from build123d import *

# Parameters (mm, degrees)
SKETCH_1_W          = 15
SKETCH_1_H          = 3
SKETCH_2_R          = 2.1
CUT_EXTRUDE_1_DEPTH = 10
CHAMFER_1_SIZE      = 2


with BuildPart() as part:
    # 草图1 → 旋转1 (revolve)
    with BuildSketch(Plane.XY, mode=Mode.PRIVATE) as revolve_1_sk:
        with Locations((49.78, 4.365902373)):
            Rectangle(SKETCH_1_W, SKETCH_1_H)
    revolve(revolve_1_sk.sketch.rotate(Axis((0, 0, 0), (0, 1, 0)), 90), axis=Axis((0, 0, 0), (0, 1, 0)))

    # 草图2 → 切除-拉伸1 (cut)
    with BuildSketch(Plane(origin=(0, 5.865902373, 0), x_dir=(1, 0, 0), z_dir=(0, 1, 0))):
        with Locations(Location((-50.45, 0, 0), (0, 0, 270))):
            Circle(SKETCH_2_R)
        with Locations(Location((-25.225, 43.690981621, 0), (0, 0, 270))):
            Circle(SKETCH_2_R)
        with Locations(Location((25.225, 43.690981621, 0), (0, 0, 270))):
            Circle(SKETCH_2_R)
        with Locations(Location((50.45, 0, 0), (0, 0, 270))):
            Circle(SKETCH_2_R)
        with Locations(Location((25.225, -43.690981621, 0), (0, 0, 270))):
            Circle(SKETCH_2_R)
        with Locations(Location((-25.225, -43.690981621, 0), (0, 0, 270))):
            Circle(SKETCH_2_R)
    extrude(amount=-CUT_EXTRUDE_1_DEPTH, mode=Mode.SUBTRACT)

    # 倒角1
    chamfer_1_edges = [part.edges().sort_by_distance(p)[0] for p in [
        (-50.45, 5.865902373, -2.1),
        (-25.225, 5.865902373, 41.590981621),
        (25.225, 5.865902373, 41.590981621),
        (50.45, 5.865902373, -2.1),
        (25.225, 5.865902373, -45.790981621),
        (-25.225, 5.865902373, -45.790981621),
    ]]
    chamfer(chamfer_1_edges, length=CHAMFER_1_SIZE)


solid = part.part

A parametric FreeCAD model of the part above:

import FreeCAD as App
import Part
import Sketcher

V = App.Vector
Q = App.Units.Quantity


def edges_at(feature, points):
    """Names of the edges that pass closest to the given points."""
    edges = feature.Shape.Edges
    near = lambda p: min(range(len(edges)), key=lambda i: edges[i].distToShape(Part.Vertex(*p))[0])
    return sorted({f"Edge{near(p) + 1}" for p in points})

doc = App.newDocument("Part")
body = doc.addObject("PartDesign::Body", "Body")

# Sketch on XY plane
sketch1 = body.newObject("Sketcher::SketchObject", "Sketch")
sketch1.AttachmentSupport = (doc.getObject("XY_Plane"), [""])
sketch1.MapMode = "FlatFace"
sketch1.addGeometry([
    Part.LineSegment(V(42.3, 5.9, 0), V(42.3, 2.9, 0)),
    Part.LineSegment(V(42.3, 2.9, 0), V(57.3, 2.9, 0)),
    Part.LineSegment(V(57.3, 2.9, 0), V(57.3, 5.9, 0)),
    Part.LineSegment(V(57.3, 5.9, 0), V(42.3, 5.9, 0)),
], False)
sketch1.addConstraint([
    Sketcher.Constraint("Coincident", 0, 2, 1, 1),
    Sketcher.Constraint("Coincident", 1, 2, 2, 1),
    Sketcher.Constraint("Coincident", 2, 2, 3, 1),
    Sketcher.Constraint("Coincident", 3, 2, 0, 1),
    Sketcher.Constraint("Vertical", 0),
    Sketcher.Constraint("Horizontal", 1),
    Sketcher.Constraint("Vertical", 2),
    Sketcher.Constraint("Horizontal", 3),
    Sketcher.Constraint("DistanceX", 1, 1, 1, 2, Q("15 mm")),
    Sketcher.Constraint("DistanceY", 0, 2, 0, 1, Q("3 mm")),
    Sketcher.Constraint("DistanceX", -1, 1, 0, 2, Q("42.28 mm")),
    Sketcher.Constraint("DistanceY", -1, 1, 0, 2, Q("2.865902 mm")),
])
revolution = body.newObject("PartDesign::Revolution", "Revolution")
revolution.Profile = sketch1
revolution.ReferenceAxis = (sketch1, ["V_Axis"])
revolution.Angle = 360

# Sketch on XZ plane
sketch2 = body.newObject("Sketcher::SketchObject", "Sketch001")
sketch2.AttachmentSupport = (doc.getObject("XZ_Plane"), [""])
sketch2.MapMode = "FlatFace"
sketch2.AttachmentOffset = App.Placement(V(0, 0, -5.865902), App.Rotation())
sketch2.addGeometry([
    Part.Circle(V(-50.5, 0, 0), V(0, 0, 1), 2.1),  # 0
    Part.Circle(V(-25.2, -43.7, 0), V(0, 0, 1), 2.1),  # 1
    Part.Circle(V(25.2, -43.7, 0), V(0, 0, 1), 2.1),  # 2
    Part.Circle(V(50.5, 0, 0), V(0, 0, 1), 2.1),  # 3
    Part.Circle(V(25.2, 43.7, 0), V(0, 0, 1), 2.1),  # 4
    Part.Circle(V(-25.2, 43.7, 0), V(0, 0, 1), 2.1),  # 5
], False)
sketch2.addConstraint([
    Sketcher.Constraint("Equal", 0, 1),
    Sketcher.Constraint("Equal", 1, 2),
    Sketcher.Constraint("Equal", 2, 3),
    Sketcher.Constraint("Equal", 3, 4),
    Sketcher.Constraint("Equal", 4, 5),
    Sketcher.Constraint("Symmetric", 0, 3, 3, 3, -1, 1),
    Sketcher.Constraint("Symmetric", 1, 3, 4, 3, -1, 1),
    Sketcher.Constraint("Symmetric", 2, 3, 5, 3, -1, 1),
    Sketcher.Constraint("Symmetric", 1, 3, 2, 3, -2),
    Sketcher.Constraint("PointOnObject", 0, 3, -1),
    Sketcher.Constraint("Diameter", 0, Q("4.2 mm")),
    Sketcher.Constraint("DistanceX", 0, 3, 3, 3, Q("100.9 mm")),
    Sketcher.Constraint("DistanceX", 1, 3, 2, 3, Q("50.45 mm")),
    Sketcher.Constraint("DistanceY", 1, 3, -1, 1, Q("43.690982 mm")),
])
pocket1 = body.newObject("PartDesign::Pocket", "Pocket")
pocket1.Profile = sketch2
pocket1.Length = 10
pocket1.Reversed = True
doc.recompute()

chamfer = body.newObject("PartDesign::Chamfer", "Chamfer")
chamfer.Base = (pocket1, edges_at(pocket1, [
    (-50.45, 5.866, -2.1),
    (-25.225, 5.866, 41.591),
    (25.225, 5.866, 41.591),
    (50.45, 5.866, -2.1),
    (25.225, 5.866, -45.791),
    (-25.225, 5.866, -45.791),
]))
chamfer.Size = 2

doc.recompute()
